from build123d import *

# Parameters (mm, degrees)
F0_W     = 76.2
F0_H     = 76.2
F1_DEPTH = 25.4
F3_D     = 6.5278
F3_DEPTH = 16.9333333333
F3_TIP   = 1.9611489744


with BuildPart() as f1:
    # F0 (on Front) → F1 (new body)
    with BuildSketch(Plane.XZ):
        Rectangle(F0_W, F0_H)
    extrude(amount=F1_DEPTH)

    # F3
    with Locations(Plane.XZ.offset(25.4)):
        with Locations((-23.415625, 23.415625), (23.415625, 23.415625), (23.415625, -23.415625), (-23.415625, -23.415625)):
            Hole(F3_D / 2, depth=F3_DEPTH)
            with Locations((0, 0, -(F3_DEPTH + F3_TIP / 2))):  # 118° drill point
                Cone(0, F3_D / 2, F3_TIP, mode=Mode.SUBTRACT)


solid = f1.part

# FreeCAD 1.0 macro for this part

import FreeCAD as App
import Part
import Sketcher
Q = App.Units.Quantity

doc = App.newDocument("Part")
params = doc.addObject("Spreadsheet::Sheet", "Params")
for row, (alias, value) in enumerate([
    ("sketch1_width", "3 in"),
    ("pad1_length", "1 in"),
    ("sketch2_diameter", "0.257 in"),
    ("hole_diameter", "0.257 in"),
    ("hole_depth", "16.933333 mm"),
], start=1):
    params.set(f"A{row}", alias)
    params.set(f"B{row}", "=" + value)
    params.setAlias(f"B{row}", alias)

body = doc.addObject("PartDesign::Body", "Body")

# Sketch on XZ plane
sketch1 = body.newObject("Sketcher::SketchObject", "Sketch")
sketch1.AttachmentSupport = (doc.getObject("XZ_Plane"), [""])
sketch1.MapMode = "FlatFace"
sketch1.addGeometry(Part.LineSegment(App.Vector(-38.1, 38.1, 0), App.Vector(-38.1, -38.1, 0)), False)
sketch1.addGeometry(Part.LineSegment(App.Vector(-38.1, -38.1, 0), App.Vector(38.1, -38.1, 0)), False)
sketch1.addGeometry(Part.LineSegment(App.Vector(38.1, -38.1, 0), App.Vector(38.1, 38.1, 0)), False)
sketch1.addGeometry(Part.LineSegment(App.Vector(38.1, 38.1, 0), App.Vector(-38.1, 38.1, 0)), False)
sketch1.addConstraint(Sketcher.Constraint("Coincident", 0, 2, 1, 1))
sketch1.addConstraint(Sketcher.Constraint("Coincident", 1, 2, 2, 1))
sketch1.addConstraint(Sketcher.Constraint("Coincident", 2, 2, 3, 1))
sketch1.addConstraint(Sketcher.Constraint("Coincident", 3, 2, 0, 1))
sketch1.addConstraint(Sketcher.Constraint("Vertical", 0))
sketch1.addConstraint(Sketcher.Constraint("Horizontal", 1))
sketch1.addConstraint(Sketcher.Constraint("Vertical", 2))
sketch1.addConstraint(Sketcher.Constraint("Horizontal", 3))
sketch1.addConstraint(Sketcher.Constraint("Symmetric", 0, 2, 2, 2, -1, 1))
sketch1.addConstraint(Sketcher.Constraint("Equal", 3, 0))
sketch1.addConstraint(Sketcher.Constraint("DistanceX", 1, 1, 1, 2, Q("3 in")))
sketch1.setExpression("Constraints[10]", "Params.sketch1_width")
pad1 = body.newObject("PartDesign::Pad", "Pad")
pad1.Profile = sketch1
pad1.setExpression("Length", "Params.pad1_length")

# Sketch on XZ plane
sketch2 = body.newObject("Sketcher::SketchObject", "Sketch001")
sketch2.AttachmentSupport = (doc.getObject("XZ_Plane"), [""])
sketch2.MapMode = "FlatFace"
sketch2.AttachmentOffset = App.Placement(App.Vector(0, 0, 1 * 25.4), App.Rotation())
sketch2.addGeometry(Part.Circle(App.Vector(-23.415625, 23.415625, 0), App.Vector(0, 0, 1), 3.2639), False)
sketch2.addGeometry(Part.Circle(App.Vector(23.415625, 23.415625, 0), App.Vector(0, 0, 1), 3.2639), False)
sketch2.addGeometry(Part.Circle(App.Vector(23.415625, -23.415625, 0), App.Vector(0, 0, 1), 3.2639), False)
sketch2.addGeometry(Part.Circle(App.Vector(-23.415625, -23.415625, 0), App.Vector(0, 0, 1), 3.2639), False)
sketch2.addConstraint(Sketcher.Constraint("Equal", 0, 1))
sketch2.addConstraint(Sketcher.Constraint("Equal", 1, 2))
sketch2.addConstraint(Sketcher.Constraint("Equal", 2, 3))
sketch2.addConstraint(Sketcher.Constraint("Symmetric", 0, 3, 2, 3, -1, 1))
sketch2.addConstraint(Sketcher.Constraint("Symmetric", 1, 3, 3, 3, -1, 1))
sketch2.addConstraint(Sketcher.Constraint("Symmetric", 0, 3, 1, 3, -2))
sketch2.addConstraint(Sketcher.Constraint("Diameter", 0, Q("0.257 in")))
sketch2.addConstraint(Sketcher.Constraint("DistanceX", 0, 3, -1, 1, Q("0.921875 in")))
sketch2.addConstraint(Sketcher.Constraint("DistanceY", -1, 1, 0, 3, Q("0.921875 in")))
sketch2.setExpression("Constraints[6]", "Params.sketch2_diameter")
doc.recompute()
hole = body.newObject("PartDesign::Hole", "Hole")
hole.Profile = sketch2
hole.ThreadType = "None"
hole.setExpression("Diameter", "Params.hole_diameter")
hole.DepthType = "Dimension"
hole.setExpression("Depth", "Params.hole_depth")
hole.DrillPoint = "Angled"
hole.DrillPointAngle = 118

doc.recompute()
